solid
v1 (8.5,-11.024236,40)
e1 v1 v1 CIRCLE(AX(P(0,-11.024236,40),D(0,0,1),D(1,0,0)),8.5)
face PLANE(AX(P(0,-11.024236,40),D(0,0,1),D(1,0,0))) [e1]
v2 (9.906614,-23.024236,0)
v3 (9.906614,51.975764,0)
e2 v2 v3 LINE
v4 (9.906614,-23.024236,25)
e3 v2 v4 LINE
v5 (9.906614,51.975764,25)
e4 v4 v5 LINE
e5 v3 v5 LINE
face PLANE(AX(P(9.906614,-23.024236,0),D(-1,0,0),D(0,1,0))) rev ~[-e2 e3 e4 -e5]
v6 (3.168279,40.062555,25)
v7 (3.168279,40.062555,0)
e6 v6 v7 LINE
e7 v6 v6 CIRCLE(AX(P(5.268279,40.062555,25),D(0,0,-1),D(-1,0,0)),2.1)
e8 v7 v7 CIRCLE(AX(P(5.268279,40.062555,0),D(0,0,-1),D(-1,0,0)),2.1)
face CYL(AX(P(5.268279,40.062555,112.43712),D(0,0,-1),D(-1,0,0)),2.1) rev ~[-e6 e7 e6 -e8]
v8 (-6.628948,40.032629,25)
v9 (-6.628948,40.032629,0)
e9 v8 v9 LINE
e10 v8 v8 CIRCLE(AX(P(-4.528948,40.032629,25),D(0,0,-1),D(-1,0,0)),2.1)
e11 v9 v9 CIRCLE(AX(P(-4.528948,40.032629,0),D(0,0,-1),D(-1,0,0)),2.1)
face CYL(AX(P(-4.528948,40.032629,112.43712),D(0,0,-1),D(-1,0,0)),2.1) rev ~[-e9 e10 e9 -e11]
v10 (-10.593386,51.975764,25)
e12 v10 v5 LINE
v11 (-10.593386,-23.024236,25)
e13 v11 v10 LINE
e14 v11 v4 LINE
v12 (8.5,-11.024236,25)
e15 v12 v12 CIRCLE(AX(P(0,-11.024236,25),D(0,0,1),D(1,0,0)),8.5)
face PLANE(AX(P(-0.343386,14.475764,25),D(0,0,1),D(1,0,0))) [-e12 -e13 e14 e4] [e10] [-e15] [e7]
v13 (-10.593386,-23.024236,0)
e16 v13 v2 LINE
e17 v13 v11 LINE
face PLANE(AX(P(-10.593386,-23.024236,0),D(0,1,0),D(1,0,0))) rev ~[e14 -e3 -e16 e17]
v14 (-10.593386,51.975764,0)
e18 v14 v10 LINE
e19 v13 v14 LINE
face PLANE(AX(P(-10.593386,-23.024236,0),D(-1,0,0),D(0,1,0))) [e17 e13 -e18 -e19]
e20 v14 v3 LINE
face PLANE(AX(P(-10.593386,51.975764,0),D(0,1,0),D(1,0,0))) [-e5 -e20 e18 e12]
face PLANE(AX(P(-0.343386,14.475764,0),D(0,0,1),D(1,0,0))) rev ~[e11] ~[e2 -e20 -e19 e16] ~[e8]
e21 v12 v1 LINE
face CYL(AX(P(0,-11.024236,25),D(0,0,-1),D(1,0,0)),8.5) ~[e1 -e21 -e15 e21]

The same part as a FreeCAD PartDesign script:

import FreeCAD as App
import Part
import Sketcher

V = App.Vector
Q = App.Units.Quantity

doc = App.newDocument("Part")
body = doc.addObject("PartDesign::Body", "Body")

# Sketch on XY plane
sketch1 = doc.addObject("Sketcher::SketchObject", "Sketch")
body.addObject(sketch1)
sketch1.AttachmentSupport = (doc.XY_Plane, [""])
sketch1.MapMode = "FlatFace"
sketch1.addGeometry(Part.LineSegment(V(-11, 52, 0), V(-11, -23, 0)), False)
sketch1.addGeometry(Part.LineSegment(V(-11, -23, 0), V(10, -23, 0)), False)
sketch1.addGeometry(Part.LineSegment(V(10, -23, 0), V(10, 52, 0)), False)
sketch1.addGeometry(Part.LineSegment(V(10, 52, 0), V(-11, 52, 0)), False)
sketch1.addConstraint(Sketcher.Constraint("Coincident", 0, 2, 1, 1))
sketch1.addConstraint(Sketcher.Constraint("Coincident", 1, 2, 2, 1))
sketch1.addConstraint(Sketcher.Constraint("Coincident", 2, 2, 3, 1))
sketch1.addConstraint(Sketcher.Constraint("Coincident", 3, 2, 0, 1))
sketch1.addConstraint(Sketcher.Constraint("Vertical", 0))
sketch1.addConstraint(Sketcher.Constraint("Horizontal", 1))
sketch1.addConstraint(Sketcher.Constraint("Vertical", 2))
sketch1.addConstraint(Sketcher.Constraint("Horizontal", 3))
sketch1.addConstraint(Sketcher.Constraint("DistanceY", 0, 2, 0, 1, Q("75 mm")))
sketch1.addConstraint(Sketcher.Constraint("DistanceX", 1, 1, 1, 2, Q("20.5 mm")))
sketch1.addConstraint(Sketcher.Constraint("DistanceX", 0, 2, -1, 1, Q("10.593386 mm")))
sketch1.addConstraint(Sketcher.Constraint("DistanceY", 0, 2, -1, 1, Q("23.024236 mm")))
pad1 = doc.addObject("PartDesign::Pad", "Pad")
body.addObject(pad1)
pad1.Profile = sketch1
pad1.Length = 25

# Sketch on XY plane
sketch2 = doc.addObject("Sketcher::SketchObject", "Sketch001")
body.addObject(sketch2)
sketch2.AttachmentSupport = (doc.XY_Plane, [""])
sketch2.MapMode = "FlatFace"
sketch2.AttachmentOffset = App.Placement(V(0, 0, 25), App.Rotation())
sketch2.addGeometry(Part.Circle(V(0, -11, 0), V(0, 0, 1), 8), False)
sketch2.addConstraint(Sketcher.Constraint("PointOnObject", 0, 3, -2))
sketch2.addConstraint(Sketcher.Constraint("Diameter", 0, Q("17 mm")))
sketch2.addConstraint(Sketcher.Constraint("DistanceY", 0, 3, -1, 1, Q("11.024236 mm")))
pad2 = doc.addObject("PartDesign::Pad", "Pad001")
body.addObject(pad2)
pad2.Profile = sketch2
pad2.Length = 15

# Sketch on XY plane
sketch3 = doc.addObject("Sketcher::SketchObject", "Sketch002")
body.addObject(sketch3)
sketch3.AttachmentSupport = (doc.XY_Plane, [""])
sketch3.MapMode = "FlatFace"
sketch3.AttachmentOffset = App.Placement(V(0, 0, 25), App.Rotation())
sketch3.addGeometry(Part.Circle(V(-4.5, 40, 0), V(0, 0, 1), 2.1), False)
sketch3.addGeometry(Part.Circle(V(5.3, 40.1, 0), V(0, 0, 1), 2.1), False)
sketch3.addConstraint(Sketcher.Constraint("Equal", 0, 1))
sketch3.addConstraint(Sketcher.Constraint("Diameter", 0, Q("4.2 mm")))
sketch3.addConstraint(Sketcher.Constraint("DistanceX", 0, 3, -1, 1, Q("4.528948 mm")))
sketch3.addConstraint(Sketcher.Constraint("DistanceY", -1, 1, 0, 3, Q("40.032629 mm")))
sketch3.addConstraint(Sketcher.Constraint("DistanceX", -1, 1, 1, 3, Q("5.268279 mm")))
sketch3.addConstraint(Sketcher.Constraint("DistanceY", -1, 1, 1, 3, Q("40.062555 mm")))
doc.recompute()
hole = doc.addObject("PartDesign::Hole", "Hole")
body.addObject(hole)
hole.Profile = sketch3
hole.ThreadType = "None"
hole.Diameter = 4.2
hole.DepthType = "ThroughAll"

doc.recompute()
